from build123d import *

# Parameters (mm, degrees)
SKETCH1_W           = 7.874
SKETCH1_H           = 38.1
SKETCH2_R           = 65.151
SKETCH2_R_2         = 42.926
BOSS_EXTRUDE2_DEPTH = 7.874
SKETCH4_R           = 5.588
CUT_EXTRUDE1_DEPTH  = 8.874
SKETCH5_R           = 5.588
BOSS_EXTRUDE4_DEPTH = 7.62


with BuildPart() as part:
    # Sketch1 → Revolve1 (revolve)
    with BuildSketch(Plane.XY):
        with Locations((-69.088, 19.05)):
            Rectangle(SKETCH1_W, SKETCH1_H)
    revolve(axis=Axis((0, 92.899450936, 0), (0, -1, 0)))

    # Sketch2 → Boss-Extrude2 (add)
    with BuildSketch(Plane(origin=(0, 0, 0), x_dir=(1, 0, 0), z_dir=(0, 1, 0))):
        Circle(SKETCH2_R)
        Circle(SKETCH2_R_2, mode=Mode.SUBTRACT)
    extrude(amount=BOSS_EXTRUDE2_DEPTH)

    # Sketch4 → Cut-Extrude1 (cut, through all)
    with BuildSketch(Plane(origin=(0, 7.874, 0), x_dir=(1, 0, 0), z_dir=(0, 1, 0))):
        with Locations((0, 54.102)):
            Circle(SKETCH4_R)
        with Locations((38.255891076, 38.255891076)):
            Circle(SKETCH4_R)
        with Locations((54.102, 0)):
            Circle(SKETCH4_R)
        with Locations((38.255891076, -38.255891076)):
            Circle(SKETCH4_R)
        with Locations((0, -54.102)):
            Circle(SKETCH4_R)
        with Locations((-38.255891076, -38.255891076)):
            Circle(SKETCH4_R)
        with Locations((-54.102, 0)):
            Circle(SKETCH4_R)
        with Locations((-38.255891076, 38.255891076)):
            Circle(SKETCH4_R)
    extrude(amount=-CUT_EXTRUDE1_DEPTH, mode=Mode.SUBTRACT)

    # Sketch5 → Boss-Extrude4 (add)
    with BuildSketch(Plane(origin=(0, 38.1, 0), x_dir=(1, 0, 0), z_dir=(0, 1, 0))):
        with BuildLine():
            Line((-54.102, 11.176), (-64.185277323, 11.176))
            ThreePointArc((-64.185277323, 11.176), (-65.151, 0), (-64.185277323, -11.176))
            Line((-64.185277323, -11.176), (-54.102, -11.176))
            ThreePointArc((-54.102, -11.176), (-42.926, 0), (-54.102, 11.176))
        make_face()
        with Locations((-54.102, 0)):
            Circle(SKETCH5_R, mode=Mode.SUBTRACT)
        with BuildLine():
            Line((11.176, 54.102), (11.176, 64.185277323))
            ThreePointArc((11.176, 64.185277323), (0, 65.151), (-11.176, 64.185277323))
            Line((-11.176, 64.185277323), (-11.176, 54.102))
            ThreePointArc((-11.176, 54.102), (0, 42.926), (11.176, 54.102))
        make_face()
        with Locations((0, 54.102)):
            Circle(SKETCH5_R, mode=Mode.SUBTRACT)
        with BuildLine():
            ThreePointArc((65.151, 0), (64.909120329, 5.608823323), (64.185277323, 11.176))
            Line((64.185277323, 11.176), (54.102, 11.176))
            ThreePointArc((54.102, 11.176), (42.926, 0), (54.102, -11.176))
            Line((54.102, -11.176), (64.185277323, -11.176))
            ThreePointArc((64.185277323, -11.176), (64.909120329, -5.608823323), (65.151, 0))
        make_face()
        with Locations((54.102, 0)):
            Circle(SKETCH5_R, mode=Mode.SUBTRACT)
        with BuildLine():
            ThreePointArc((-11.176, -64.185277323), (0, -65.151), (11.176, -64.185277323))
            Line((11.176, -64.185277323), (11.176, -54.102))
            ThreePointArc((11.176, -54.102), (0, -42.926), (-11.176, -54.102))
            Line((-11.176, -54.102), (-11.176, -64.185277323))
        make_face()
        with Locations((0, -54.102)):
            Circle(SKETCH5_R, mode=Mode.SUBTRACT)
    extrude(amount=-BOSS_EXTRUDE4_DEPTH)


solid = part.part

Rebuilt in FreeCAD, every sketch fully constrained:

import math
import FreeCAD as App
import Part
import Sketcher
Q = App.Units.Quantity


def add_polygon(sketch, points):
    """Adds a closed chain of lines whose ends are joined by coincident constraints."""
    first, n = sketch.GeometryCount, len(points)
    for a, b in zip(points, points[1:] + points[:1]):
        sketch.addGeometry(Part.LineSegment(App.Vector(*a, 0), App.Vector(*b, 0)), False)
    for i in range(n):
        sketch.addConstraint(Sketcher.Constraint("Coincident", first + i, 2, first + (i + 1) % n, 1))

doc = App.newDocument("Part")
body = doc.addObject("PartDesign::Body", "Body")

# Sketch on XY plane
sketch1 = body.newObject("Sketcher::SketchObject", "Sketch")
sketch1.AttachmentSupport = (doc.getObject("XY_Plane"), [""])
sketch1.MapMode = "FlatFace"
add_polygon(sketch1, [(-73.025, 38.1), (-73.025, 0), (-65.151, 0), (-65.151, 38.1)])  # lines 0-3
sketch1.addConstraint([
    Sketcher.Constraint("Vertical", 0),
    Sketcher.Constraint("Horizontal", 1),
    Sketcher.Constraint("Vertical", 2),
    Sketcher.Constraint("Horizontal", 3),
    Sketcher.Constraint("PointOnObject", 0, 2, -1),
    Sketcher.Constraint("DistanceY", 0, 2, 0, 1, Q("1.5 in")),
    Sketcher.Constraint("DistanceX", 1, 1, 1, 2, Q("0.31 in")),
    Sketcher.Constraint("DistanceX", 0, 2, -1, 1, Q("2.875 in")),
])
revolution = body.newObject("PartDesign::Revolution", "Revolution")
revolution.Profile = sketch1
revolution.ReferenceAxis = (sketch1, ["V_Axis"])
revolution.Angle = 360

# Sketch on XZ plane
sketch2 = body.newObject("Sketcher::SketchObject", "Sketch001")
sketch2.AttachmentSupport = (doc.getObject("XZ_Plane"), [""])
sketch2.MapMode = "FlatFace"
sketch2.addGeometry([
    Part.Circle(App.Vector(0, 0, 0), App.Vector(0, 0, 1), 65.151),
    Part.Circle(App.Vector(0, 0, 0), App.Vector(0, 0, 1), 42.926),
], False)
sketch2.addConstraint([
    Sketcher.Constraint("Coincident", 0, 3, -1, 1),
    Sketcher.Constraint("Coincident", 1, 3, -1, 1),
    Sketcher.Constraint("Diameter", 0, Q("5.13 in")),
    Sketcher.Constraint("Diameter", 1, Q("3.38 in")),
])
pad1 = body.newObject("PartDesign::Pad", "Pad")
pad1.Profile = sketch2
pad1.Length = Q("0.31 in")
pad1.Reversed = True

# Sketch on XZ plane
sketch3 = body.newObject("Sketcher::SketchObject", "Sketch002")
sketch3.AttachmentSupport = (doc.getObject("XZ_Plane"), [""])
sketch3.MapMode = "FlatFace"
sketch3.AttachmentOffset = App.Placement(App.Vector(0, 0, -0.31 * 25.4), App.Rotation())
sketch3.addGeometry([
    Part.Circle(App.Vector(0, -54.102, 0), App.Vector(0, 0, 1), 5.588),  # 0
    Part.Circle(App.Vector(38.255891, -38.255891, 0), App.Vector(0, 0, 1), 5.588),  # 1
    Part.Circle(App.Vector(54.102, 0, 0), App.Vector(0, 0, 1), 5.588),  # 2
    Part.Circle(App.Vector(38.255891, 38.255891, 0), App.Vector(0, 0, 1), 5.588),  # 3
    Part.Circle(App.Vector(0, 54.102, 0), App.Vector(0, 0, 1), 5.588),  # 4
    Part.Circle(App.Vector(-38.255891, 38.255891, 0), App.Vector(0, 0, 1), 5.588),  # 5
    Part.Circle(App.Vector(-54.102, 0, 0), App.Vector(0, 0, 1), 5.588),  # 6
    Part.Circle(App.Vector(-38.255891, -38.255891, 0), App.Vector(0, 0, 1), 5.588),  # 7
], False)
sketch3.addConstraint([
    Sketcher.Constraint("Equal", 0, 1),
    Sketcher.Constraint("Equal", 1, 2),
    Sketcher.Constraint("Equal", 2, 3),
    Sketcher.Constraint("Equal", 3, 4),
    Sketcher.Constraint("Equal", 4, 5),
    Sketcher.Constraint("Equal", 5, 6),
    Sketcher.Constraint("Equal", 6, 7),
    Sketcher.Constraint("Symmetric", 0, 3, 4, 3, -1, 1),
    Sketcher.Constraint("Symmetric", 1, 3, 5, 3, -1, 1),
    Sketcher.Constraint("Symmetric", 2, 3, 6, 3, -1, 1),
    Sketcher.Constraint("Symmetric", 3, 3, 7, 3, -1, 1),
    Sketcher.Constraint("Symmetric", 3, 3, 5, 3, -2),
    Sketcher.Constraint("PointOnObject", 0, 3, -2),
    Sketcher.Constraint("PointOnObject", 2, 3, -1),
    Sketcher.Constraint("Diameter", 0, Q("0.44 in")),
    Sketcher.Constraint("DistanceY", 0, 3, -1, 1, Q("2.13 in")),
    Sketcher.Constraint("DistanceX", -1, 1, 2, 3, Q("2.13 in")),
    Sketcher.Constraint("DistanceX", -1, 1, 1, 3, Q("38.255891 mm")),
    Sketcher.Constraint("DistanceY", 1, 3, -1, 1, Q("38.255891 mm")),
])
pocket1 = body.newObject("PartDesign::Pocket", "Pocket")
pocket1.Profile = sketch3
pocket1.Type = "ThroughAll"
pocket1.Reversed = True

# Sketch on XZ plane
sketch4 = body.newObject("Sketcher::SketchObject", "Sketch003")
sketch4.AttachmentSupport = (doc.getObject("XZ_Plane"), [""])
sketch4.MapMode = "FlatFace"
sketch4.AttachmentOffset = App.Placement(App.Vector(0, 0, -1.5 * 25.4), App.Rotation())
sketch4.addGeometry([
    Part.LineSegment(App.Vector(-54.102, -11.176, 0), App.Vector(-64.185277, -11.176, 0)),  # 0
    Part.ArcOfCircle(Part.Circle(App.Vector(0, 0, 0), App.Vector(0, 0, 1), 65.151), math.radians(170.122632), math.radians(189.877368)),  # 1
    Part.LineSegment(App.Vector(-64.185277, 11.176, 0), App.Vector(-54.102, 11.176, 0)),  # 2
    Part.ArcOfCircle(Part.Circle(App.Vector(-54.102, 0, 0), App.Vector(0, 0, 1), 11.176), math.radians(-90), math.radians(90)),  # 3
    Part.Circle(App.Vector(-54.102, 0, 0), App.Vector(0, 0, 1), 5.588),  # 4
    Part.LineSegment(App.Vector(11.176, -54.102, 0), App.Vector(11.176, -64.185277, 0)),  # 5
    Part.ArcOfCircle(Part.Circle(App.Vector(0, 0, 0), App.Vector(0, 0, 1), 65.151), math.radians(-99.877368), math.radians(-80.122632)),  # 6
    Part.LineSegment(App.Vector(-11.176, -64.185277, 0), App.Vector(-11.176, -54.102, 0)),  # 7
    Part.ArcOfCircle(Part.Circle(App.Vector(0, -54.102, 0), App.Vector(0, 0, 1), 11.176), math.radians(0), math.radians(180)),  # 8
    Part.Circle(App.Vector(0, -54.102, 0), App.Vector(0, 0, 1), 5.588),  # 9
    Part.ArcOfCircle(Part.Circle(App.Vector(0, 0, 0), App.Vector(0, 0, 1), 65.151), math.radians(-9.877368), math.radians(0)),  # 10
    Part.LineSegment(App.Vector(64.185277, -11.176, 0), App.Vector(54.102, -11.176, 0)),  # 11
    Part.ArcOfCircle(Part.Circle(App.Vector(54.102, 0, 0), App.Vector(0, 0, 1), 11.176), math.radians(90), math.radians(270)),  # 12
    Part.LineSegment(App.Vector(54.102, 11.176, 0), App.Vector(64.185277, 11.176, 0)),  # 13
    Part.ArcOfCircle(Part.Circle(App.Vector(0, 0, 0), App.Vector(0, 0, 1), 65.151), math.radians(0), math.radians(9.877368)),  # 14
    Part.Circle(App.Vector(54.102, 0, 0), App.Vector(0, 0, 1), 5.588),  # 15
    Part.ArcOfCircle(Part.Circle(App.Vector(0, 0, 0), App.Vector(0, 0, 1), 65.151), math.radians(80.122632), math.radians(99.877368)),  # 16
    Part.LineSegment(App.Vector(11.176, 64.185277, 0), App.Vector(11.176, 54.102, 0)),  # 17
    Part.ArcOfCircle(Part.Circle(App.Vector(0, 54.102, 0), App.Vector(0, 0, 1), 11.176), math.radians(180), math.radians(360)),  # 18
    Part.LineSegment(App.Vector(-11.176, 54.102, 0), App.Vector(-11.176, 64.185277, 0)),  # 19
    Part.Circle(App.Vector(0, 54.102, 0), App.Vector(0, 0, 1), 5.588),  # 20
], False)
sketch4.addConstraint([
    Sketcher.Constraint("Coincident", 0, 2, 1, 2),
    Sketcher.Constraint("Coincident", 1, 1, 2, 1),
    Sketcher.Constraint("Tangent", 2, 2, 3, 2),
    Sketcher.Constraint("Tangent", 3, 1, 0, 1),
    Sketcher.Constraint("Coincident", 5, 2, 6, 2),
    Sketcher.Constraint("Coincident", 6, 1, 7, 1),
    Sketcher.Constraint("Tangent", 7, 2, 8, 2),
    Sketcher.Constraint("Tangent", 8, 1, 5, 1),
    Sketcher.Constraint("Coincident", 10, 1, 11, 1),
    Sketcher.Constraint("Tangent", 11, 2, 12, 2),
    Sketcher.Constraint("Tangent", 12, 1, 13, 1),
    Sketcher.Constraint("Coincident", 13, 2, 14, 2),
    Sketcher.Constraint("Tangent", 14, 1, 10, 2),
    Sketcher.Constraint("Coincident", 16, 1, 17, 1),
    Sketcher.Constraint("Tangent", 17, 2, 18, 2),
    Sketcher.Constraint("Tangent", 18, 1, 19, 1),
    Sketcher.Constraint("Coincident", 19, 2, 16, 2),
    Sketcher.Constraint("Horizontal", 0),
    Sketcher.Constraint("Horizontal", 2),
    Sketcher.Constraint("Vertical", 5),
    Sketcher.Constraint("Vertical", 7),
    Sketcher.Constraint("Horizontal", 11),
    Sketcher.Constraint("Horizontal", 13),
    Sketcher.Constraint("Vertical", 17),
    Sketcher.Constraint("Vertical", 19),
    Sketcher.Constraint("Coincident", 1, 3, -1, 1),
    Sketcher.Constraint("Coincident", 6, 3, -1, 1),
    Sketcher.Constraint("Coincident", 10, 3, -1, 1),
    Sketcher.Constraint("Coincident", 16, 3, -1, 1),
    Sketcher.Constraint("Coincident", 4, 3, 3, 3),
    Sketcher.Constraint("Coincident", 9, 3, 8, 3),
    Sketcher.Constraint("Coincident", 15, 3, 12, 3),
    Sketcher.Constraint("Coincident", 20, 3, 18, 3),
    Sketcher.Constraint("Equal", 1, 6),
    Sketcher.Constraint("Equal", 3, 8),
    Sketcher.Constraint("Equal", 4, 9),
    Sketcher.Constraint("Equal", 6, 10),
    Sketcher.Constraint("Equal", 8, 12),
    Sketcher.Constraint("Equal", 10, 14),
    Sketcher.Constraint("Equal", 9, 15),
    Sketcher.Constraint("Equal", 14, 16),
    Sketcher.Constraint("Equal", 12, 18),
    Sketcher.Constraint("Equal", 15, 20),
    Sketcher.Constraint("Symmetric", 3, 3, 12, 3, -1, 1),
    Sketcher.Constraint("Symmetric", 8, 3, 18, 3, -1, 1),
    Sketcher.Constraint("PointOnObject", 3, 3, -1),
    Sketcher.Constraint("PointOnObject", 8, 3, -2),
    Sketcher.Constraint("PointOnObject", 14, 1, -1),
    Sketcher.Constraint("Equal", 13, 5),
    Sketcher.Constraint("Diameter", 4, Q("0.44 in")),
    Sketcher.Constraint("Radius", 3, Q("0.44 in")),
    Sketcher.Constraint("Radius", 1, Q("2.565 in")),
    Sketcher.Constraint("DistanceX", 3, 3, -1, 1, Q("2.13 in")),
])
pad2 = body.newObject("PartDesign::Pad", "Pad001")
pad2.Profile = sketch4
pad2.Length = Q("0.3 in")

doc.recompute()
